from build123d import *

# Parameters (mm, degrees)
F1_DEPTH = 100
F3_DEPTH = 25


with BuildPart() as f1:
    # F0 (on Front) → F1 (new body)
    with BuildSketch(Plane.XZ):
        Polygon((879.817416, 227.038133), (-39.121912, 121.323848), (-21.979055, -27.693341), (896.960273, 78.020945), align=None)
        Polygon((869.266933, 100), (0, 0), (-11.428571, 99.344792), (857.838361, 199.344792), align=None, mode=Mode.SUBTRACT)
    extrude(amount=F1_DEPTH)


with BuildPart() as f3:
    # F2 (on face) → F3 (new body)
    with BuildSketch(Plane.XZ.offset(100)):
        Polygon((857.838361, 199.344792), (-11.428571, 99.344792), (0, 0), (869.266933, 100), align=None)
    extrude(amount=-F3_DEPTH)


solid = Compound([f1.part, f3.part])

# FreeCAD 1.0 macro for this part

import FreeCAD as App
import Part
import Sketcher
from FreeCAD import Vector
Q = App.Units.Quantity


def add_polygon(sketch, points):
    """Adds a closed chain of lines whose ends are joined by coincident constraints."""
    first, n = sketch.GeometryCount, len(points)
    for a, b in zip(points, points[1:] + points[:1]):
        sketch.addGeometry(Part.LineSegment(App.Vector(*a, 0), App.Vector(*b, 0)), False)
    for i in range(n):
        sketch.addConstraint(Sketcher.Constraint("Coincident", first + i, 2, first + (i + 1) % n, 1))

doc = App.newDocument("Part")
params = doc.addObject("Spreadsheet::Sheet", "Params")
for row, (alias, value) in enumerate([
    ("sketch1_length", "924.999999 mm"),
    ("sketch1_length2", "150.000001 mm"),
    ("sketch1_length3", "100 mm"),
    ("sketch1_length4", "875 mm"),
    ("pad1_length", "100 mm"),
    ("sketch2_length", "874.999999 mm"),
    ("sketch2_length2", "100 mm"),
    ("pad2_length", "25 mm"),
], start=1):
    params.set(f"A{row}", alias)
    params.set(f"B{row}", "=" + value)
    params.setAlias(f"B{row}", alias)

body = doc.addObject("PartDesign::Body", "Body")

# Sketch on XZ plane
sketch1 = body.newObject("Sketcher::SketchObject", "Sketch")
sketch1.AttachmentSupport = (doc.getObject("XZ_Plane"), [""])
sketch1.MapMode = "FlatFace"
add_polygon(sketch1, [(880, 227), (-39, 121), (-22, -28), (897, 78)])  # lines 0-3
add_polygon(sketch1, [(858, 199), (869, 100), (0, 0), (-11, 99)])  # lines 4-7
sketch1.addConstraint(Sketcher.Constraint("Coincident", 5, 2, -1, 1))
sketch1.addConstraint(Sketcher.Constraint("Perpendicular", 0, 1))
sketch1.addConstraint(Sketcher.Constraint("Perpendicular", 1, 2))
sketch1.addConstraint(Sketcher.Constraint("Perpendicular", 2, 3))
sketch1.addConstraint(Sketcher.Constraint("Parallel", 3, 4))
sketch1.addConstraint(Sketcher.Constraint("Perpendicular", 4, 5))
sketch1.addConstraint(Sketcher.Constraint("Perpendicular", 5, 6))
sketch1.addConstraint(Sketcher.Constraint("Perpendicular", 6, 7))
sketch1.addConstraint(Sketcher.Constraint("Distance", 0, Q("924.999999 mm")))
sketch1.addConstraint(Sketcher.Constraint("Distance", 1, Q("150.000001 mm")))
sketch1.addConstraint(Sketcher.Constraint("Distance", 4, Q("100 mm")))
sketch1.addConstraint(Sketcher.Constraint("Distance", 5, Q("875 mm")))
sketch1.addConstraint(Sketcher.Constraint("DistanceY", -1, 1, 4, 2, Q("100 mm")))
sketch1.addConstraint(Sketcher.Constraint("DistanceY", -1, 1, 0, 2, Q("121.323848 mm")))
sketch1.addConstraint(Sketcher.Constraint("DistanceX", 4, 2, 2, 2, Q("27.69334 mm")))
sketch1.setExpression("Constraints[16]", "Params.sketch1_length")
sketch1.setExpression("Constraints[17]", "Params.sketch1_length2")
sketch1.setExpression("Constraints[18]", "Params.sketch1_length3")
sketch1.setExpression("Constraints[19]", "Params.sketch1_length4")
pad1 = body.newObject("PartDesign::Pad", "Pad")
pad1.Profile = sketch1
pad1.setExpression("Length", "Params.pad1_length")
body2 = doc.addObject("PartDesign::Body", "Body001")

# Sketch on XZ plane
sketch2 = body2.newObject("Sketcher::SketchObject", "Sketch001")
sketch2.AttachmentSupport = (doc.getObject("XZ_Plane001"), [""])
sketch2.MapMode = "FlatFace"
sketch2.AttachmentOffset = App.Placement(Vector(0, 0, 100), App.Rotation())
add_polygon(sketch2, [(858, 199), (-11, 99), (0, 0), (869, 100)])  # lines 0-3
sketch2.addConstraint(Sketcher.Constraint("Coincident", 1, 2, -1, 1))
sketch2.addConstraint(Sketcher.Constraint("Perpendicular", 0, 1))
sketch2.addConstraint(Sketcher.Constraint("Perpendicular", 1, 2))
sketch2.addConstraint(Sketcher.Constraint("Perpendicular", 2, 3))
sketch2.addConstraint(Sketcher.Constraint("Distance", 0, Q("874.999999 mm")))
sketch2.addConstraint(Sketcher.Constraint("Distance", 1, Q("100 mm")))
sketch2.addConstraint(Sketcher.Constraint("DistanceY", -1, 1, 2, 2, Q("100 mm")))
sketch2.setExpression("Constraints[8]", "Params.sketch2_length")
sketch2.setExpression("Constraints[9]", "Params.sketch2_length2")
pad2 = body2.newObject("PartDesign::Pad", "Pad001")
pad2.Profile = sketch2
pad2.setExpression("Length", "Params.pad2_length")
pad2.Reversed = True

doc.recompute()
